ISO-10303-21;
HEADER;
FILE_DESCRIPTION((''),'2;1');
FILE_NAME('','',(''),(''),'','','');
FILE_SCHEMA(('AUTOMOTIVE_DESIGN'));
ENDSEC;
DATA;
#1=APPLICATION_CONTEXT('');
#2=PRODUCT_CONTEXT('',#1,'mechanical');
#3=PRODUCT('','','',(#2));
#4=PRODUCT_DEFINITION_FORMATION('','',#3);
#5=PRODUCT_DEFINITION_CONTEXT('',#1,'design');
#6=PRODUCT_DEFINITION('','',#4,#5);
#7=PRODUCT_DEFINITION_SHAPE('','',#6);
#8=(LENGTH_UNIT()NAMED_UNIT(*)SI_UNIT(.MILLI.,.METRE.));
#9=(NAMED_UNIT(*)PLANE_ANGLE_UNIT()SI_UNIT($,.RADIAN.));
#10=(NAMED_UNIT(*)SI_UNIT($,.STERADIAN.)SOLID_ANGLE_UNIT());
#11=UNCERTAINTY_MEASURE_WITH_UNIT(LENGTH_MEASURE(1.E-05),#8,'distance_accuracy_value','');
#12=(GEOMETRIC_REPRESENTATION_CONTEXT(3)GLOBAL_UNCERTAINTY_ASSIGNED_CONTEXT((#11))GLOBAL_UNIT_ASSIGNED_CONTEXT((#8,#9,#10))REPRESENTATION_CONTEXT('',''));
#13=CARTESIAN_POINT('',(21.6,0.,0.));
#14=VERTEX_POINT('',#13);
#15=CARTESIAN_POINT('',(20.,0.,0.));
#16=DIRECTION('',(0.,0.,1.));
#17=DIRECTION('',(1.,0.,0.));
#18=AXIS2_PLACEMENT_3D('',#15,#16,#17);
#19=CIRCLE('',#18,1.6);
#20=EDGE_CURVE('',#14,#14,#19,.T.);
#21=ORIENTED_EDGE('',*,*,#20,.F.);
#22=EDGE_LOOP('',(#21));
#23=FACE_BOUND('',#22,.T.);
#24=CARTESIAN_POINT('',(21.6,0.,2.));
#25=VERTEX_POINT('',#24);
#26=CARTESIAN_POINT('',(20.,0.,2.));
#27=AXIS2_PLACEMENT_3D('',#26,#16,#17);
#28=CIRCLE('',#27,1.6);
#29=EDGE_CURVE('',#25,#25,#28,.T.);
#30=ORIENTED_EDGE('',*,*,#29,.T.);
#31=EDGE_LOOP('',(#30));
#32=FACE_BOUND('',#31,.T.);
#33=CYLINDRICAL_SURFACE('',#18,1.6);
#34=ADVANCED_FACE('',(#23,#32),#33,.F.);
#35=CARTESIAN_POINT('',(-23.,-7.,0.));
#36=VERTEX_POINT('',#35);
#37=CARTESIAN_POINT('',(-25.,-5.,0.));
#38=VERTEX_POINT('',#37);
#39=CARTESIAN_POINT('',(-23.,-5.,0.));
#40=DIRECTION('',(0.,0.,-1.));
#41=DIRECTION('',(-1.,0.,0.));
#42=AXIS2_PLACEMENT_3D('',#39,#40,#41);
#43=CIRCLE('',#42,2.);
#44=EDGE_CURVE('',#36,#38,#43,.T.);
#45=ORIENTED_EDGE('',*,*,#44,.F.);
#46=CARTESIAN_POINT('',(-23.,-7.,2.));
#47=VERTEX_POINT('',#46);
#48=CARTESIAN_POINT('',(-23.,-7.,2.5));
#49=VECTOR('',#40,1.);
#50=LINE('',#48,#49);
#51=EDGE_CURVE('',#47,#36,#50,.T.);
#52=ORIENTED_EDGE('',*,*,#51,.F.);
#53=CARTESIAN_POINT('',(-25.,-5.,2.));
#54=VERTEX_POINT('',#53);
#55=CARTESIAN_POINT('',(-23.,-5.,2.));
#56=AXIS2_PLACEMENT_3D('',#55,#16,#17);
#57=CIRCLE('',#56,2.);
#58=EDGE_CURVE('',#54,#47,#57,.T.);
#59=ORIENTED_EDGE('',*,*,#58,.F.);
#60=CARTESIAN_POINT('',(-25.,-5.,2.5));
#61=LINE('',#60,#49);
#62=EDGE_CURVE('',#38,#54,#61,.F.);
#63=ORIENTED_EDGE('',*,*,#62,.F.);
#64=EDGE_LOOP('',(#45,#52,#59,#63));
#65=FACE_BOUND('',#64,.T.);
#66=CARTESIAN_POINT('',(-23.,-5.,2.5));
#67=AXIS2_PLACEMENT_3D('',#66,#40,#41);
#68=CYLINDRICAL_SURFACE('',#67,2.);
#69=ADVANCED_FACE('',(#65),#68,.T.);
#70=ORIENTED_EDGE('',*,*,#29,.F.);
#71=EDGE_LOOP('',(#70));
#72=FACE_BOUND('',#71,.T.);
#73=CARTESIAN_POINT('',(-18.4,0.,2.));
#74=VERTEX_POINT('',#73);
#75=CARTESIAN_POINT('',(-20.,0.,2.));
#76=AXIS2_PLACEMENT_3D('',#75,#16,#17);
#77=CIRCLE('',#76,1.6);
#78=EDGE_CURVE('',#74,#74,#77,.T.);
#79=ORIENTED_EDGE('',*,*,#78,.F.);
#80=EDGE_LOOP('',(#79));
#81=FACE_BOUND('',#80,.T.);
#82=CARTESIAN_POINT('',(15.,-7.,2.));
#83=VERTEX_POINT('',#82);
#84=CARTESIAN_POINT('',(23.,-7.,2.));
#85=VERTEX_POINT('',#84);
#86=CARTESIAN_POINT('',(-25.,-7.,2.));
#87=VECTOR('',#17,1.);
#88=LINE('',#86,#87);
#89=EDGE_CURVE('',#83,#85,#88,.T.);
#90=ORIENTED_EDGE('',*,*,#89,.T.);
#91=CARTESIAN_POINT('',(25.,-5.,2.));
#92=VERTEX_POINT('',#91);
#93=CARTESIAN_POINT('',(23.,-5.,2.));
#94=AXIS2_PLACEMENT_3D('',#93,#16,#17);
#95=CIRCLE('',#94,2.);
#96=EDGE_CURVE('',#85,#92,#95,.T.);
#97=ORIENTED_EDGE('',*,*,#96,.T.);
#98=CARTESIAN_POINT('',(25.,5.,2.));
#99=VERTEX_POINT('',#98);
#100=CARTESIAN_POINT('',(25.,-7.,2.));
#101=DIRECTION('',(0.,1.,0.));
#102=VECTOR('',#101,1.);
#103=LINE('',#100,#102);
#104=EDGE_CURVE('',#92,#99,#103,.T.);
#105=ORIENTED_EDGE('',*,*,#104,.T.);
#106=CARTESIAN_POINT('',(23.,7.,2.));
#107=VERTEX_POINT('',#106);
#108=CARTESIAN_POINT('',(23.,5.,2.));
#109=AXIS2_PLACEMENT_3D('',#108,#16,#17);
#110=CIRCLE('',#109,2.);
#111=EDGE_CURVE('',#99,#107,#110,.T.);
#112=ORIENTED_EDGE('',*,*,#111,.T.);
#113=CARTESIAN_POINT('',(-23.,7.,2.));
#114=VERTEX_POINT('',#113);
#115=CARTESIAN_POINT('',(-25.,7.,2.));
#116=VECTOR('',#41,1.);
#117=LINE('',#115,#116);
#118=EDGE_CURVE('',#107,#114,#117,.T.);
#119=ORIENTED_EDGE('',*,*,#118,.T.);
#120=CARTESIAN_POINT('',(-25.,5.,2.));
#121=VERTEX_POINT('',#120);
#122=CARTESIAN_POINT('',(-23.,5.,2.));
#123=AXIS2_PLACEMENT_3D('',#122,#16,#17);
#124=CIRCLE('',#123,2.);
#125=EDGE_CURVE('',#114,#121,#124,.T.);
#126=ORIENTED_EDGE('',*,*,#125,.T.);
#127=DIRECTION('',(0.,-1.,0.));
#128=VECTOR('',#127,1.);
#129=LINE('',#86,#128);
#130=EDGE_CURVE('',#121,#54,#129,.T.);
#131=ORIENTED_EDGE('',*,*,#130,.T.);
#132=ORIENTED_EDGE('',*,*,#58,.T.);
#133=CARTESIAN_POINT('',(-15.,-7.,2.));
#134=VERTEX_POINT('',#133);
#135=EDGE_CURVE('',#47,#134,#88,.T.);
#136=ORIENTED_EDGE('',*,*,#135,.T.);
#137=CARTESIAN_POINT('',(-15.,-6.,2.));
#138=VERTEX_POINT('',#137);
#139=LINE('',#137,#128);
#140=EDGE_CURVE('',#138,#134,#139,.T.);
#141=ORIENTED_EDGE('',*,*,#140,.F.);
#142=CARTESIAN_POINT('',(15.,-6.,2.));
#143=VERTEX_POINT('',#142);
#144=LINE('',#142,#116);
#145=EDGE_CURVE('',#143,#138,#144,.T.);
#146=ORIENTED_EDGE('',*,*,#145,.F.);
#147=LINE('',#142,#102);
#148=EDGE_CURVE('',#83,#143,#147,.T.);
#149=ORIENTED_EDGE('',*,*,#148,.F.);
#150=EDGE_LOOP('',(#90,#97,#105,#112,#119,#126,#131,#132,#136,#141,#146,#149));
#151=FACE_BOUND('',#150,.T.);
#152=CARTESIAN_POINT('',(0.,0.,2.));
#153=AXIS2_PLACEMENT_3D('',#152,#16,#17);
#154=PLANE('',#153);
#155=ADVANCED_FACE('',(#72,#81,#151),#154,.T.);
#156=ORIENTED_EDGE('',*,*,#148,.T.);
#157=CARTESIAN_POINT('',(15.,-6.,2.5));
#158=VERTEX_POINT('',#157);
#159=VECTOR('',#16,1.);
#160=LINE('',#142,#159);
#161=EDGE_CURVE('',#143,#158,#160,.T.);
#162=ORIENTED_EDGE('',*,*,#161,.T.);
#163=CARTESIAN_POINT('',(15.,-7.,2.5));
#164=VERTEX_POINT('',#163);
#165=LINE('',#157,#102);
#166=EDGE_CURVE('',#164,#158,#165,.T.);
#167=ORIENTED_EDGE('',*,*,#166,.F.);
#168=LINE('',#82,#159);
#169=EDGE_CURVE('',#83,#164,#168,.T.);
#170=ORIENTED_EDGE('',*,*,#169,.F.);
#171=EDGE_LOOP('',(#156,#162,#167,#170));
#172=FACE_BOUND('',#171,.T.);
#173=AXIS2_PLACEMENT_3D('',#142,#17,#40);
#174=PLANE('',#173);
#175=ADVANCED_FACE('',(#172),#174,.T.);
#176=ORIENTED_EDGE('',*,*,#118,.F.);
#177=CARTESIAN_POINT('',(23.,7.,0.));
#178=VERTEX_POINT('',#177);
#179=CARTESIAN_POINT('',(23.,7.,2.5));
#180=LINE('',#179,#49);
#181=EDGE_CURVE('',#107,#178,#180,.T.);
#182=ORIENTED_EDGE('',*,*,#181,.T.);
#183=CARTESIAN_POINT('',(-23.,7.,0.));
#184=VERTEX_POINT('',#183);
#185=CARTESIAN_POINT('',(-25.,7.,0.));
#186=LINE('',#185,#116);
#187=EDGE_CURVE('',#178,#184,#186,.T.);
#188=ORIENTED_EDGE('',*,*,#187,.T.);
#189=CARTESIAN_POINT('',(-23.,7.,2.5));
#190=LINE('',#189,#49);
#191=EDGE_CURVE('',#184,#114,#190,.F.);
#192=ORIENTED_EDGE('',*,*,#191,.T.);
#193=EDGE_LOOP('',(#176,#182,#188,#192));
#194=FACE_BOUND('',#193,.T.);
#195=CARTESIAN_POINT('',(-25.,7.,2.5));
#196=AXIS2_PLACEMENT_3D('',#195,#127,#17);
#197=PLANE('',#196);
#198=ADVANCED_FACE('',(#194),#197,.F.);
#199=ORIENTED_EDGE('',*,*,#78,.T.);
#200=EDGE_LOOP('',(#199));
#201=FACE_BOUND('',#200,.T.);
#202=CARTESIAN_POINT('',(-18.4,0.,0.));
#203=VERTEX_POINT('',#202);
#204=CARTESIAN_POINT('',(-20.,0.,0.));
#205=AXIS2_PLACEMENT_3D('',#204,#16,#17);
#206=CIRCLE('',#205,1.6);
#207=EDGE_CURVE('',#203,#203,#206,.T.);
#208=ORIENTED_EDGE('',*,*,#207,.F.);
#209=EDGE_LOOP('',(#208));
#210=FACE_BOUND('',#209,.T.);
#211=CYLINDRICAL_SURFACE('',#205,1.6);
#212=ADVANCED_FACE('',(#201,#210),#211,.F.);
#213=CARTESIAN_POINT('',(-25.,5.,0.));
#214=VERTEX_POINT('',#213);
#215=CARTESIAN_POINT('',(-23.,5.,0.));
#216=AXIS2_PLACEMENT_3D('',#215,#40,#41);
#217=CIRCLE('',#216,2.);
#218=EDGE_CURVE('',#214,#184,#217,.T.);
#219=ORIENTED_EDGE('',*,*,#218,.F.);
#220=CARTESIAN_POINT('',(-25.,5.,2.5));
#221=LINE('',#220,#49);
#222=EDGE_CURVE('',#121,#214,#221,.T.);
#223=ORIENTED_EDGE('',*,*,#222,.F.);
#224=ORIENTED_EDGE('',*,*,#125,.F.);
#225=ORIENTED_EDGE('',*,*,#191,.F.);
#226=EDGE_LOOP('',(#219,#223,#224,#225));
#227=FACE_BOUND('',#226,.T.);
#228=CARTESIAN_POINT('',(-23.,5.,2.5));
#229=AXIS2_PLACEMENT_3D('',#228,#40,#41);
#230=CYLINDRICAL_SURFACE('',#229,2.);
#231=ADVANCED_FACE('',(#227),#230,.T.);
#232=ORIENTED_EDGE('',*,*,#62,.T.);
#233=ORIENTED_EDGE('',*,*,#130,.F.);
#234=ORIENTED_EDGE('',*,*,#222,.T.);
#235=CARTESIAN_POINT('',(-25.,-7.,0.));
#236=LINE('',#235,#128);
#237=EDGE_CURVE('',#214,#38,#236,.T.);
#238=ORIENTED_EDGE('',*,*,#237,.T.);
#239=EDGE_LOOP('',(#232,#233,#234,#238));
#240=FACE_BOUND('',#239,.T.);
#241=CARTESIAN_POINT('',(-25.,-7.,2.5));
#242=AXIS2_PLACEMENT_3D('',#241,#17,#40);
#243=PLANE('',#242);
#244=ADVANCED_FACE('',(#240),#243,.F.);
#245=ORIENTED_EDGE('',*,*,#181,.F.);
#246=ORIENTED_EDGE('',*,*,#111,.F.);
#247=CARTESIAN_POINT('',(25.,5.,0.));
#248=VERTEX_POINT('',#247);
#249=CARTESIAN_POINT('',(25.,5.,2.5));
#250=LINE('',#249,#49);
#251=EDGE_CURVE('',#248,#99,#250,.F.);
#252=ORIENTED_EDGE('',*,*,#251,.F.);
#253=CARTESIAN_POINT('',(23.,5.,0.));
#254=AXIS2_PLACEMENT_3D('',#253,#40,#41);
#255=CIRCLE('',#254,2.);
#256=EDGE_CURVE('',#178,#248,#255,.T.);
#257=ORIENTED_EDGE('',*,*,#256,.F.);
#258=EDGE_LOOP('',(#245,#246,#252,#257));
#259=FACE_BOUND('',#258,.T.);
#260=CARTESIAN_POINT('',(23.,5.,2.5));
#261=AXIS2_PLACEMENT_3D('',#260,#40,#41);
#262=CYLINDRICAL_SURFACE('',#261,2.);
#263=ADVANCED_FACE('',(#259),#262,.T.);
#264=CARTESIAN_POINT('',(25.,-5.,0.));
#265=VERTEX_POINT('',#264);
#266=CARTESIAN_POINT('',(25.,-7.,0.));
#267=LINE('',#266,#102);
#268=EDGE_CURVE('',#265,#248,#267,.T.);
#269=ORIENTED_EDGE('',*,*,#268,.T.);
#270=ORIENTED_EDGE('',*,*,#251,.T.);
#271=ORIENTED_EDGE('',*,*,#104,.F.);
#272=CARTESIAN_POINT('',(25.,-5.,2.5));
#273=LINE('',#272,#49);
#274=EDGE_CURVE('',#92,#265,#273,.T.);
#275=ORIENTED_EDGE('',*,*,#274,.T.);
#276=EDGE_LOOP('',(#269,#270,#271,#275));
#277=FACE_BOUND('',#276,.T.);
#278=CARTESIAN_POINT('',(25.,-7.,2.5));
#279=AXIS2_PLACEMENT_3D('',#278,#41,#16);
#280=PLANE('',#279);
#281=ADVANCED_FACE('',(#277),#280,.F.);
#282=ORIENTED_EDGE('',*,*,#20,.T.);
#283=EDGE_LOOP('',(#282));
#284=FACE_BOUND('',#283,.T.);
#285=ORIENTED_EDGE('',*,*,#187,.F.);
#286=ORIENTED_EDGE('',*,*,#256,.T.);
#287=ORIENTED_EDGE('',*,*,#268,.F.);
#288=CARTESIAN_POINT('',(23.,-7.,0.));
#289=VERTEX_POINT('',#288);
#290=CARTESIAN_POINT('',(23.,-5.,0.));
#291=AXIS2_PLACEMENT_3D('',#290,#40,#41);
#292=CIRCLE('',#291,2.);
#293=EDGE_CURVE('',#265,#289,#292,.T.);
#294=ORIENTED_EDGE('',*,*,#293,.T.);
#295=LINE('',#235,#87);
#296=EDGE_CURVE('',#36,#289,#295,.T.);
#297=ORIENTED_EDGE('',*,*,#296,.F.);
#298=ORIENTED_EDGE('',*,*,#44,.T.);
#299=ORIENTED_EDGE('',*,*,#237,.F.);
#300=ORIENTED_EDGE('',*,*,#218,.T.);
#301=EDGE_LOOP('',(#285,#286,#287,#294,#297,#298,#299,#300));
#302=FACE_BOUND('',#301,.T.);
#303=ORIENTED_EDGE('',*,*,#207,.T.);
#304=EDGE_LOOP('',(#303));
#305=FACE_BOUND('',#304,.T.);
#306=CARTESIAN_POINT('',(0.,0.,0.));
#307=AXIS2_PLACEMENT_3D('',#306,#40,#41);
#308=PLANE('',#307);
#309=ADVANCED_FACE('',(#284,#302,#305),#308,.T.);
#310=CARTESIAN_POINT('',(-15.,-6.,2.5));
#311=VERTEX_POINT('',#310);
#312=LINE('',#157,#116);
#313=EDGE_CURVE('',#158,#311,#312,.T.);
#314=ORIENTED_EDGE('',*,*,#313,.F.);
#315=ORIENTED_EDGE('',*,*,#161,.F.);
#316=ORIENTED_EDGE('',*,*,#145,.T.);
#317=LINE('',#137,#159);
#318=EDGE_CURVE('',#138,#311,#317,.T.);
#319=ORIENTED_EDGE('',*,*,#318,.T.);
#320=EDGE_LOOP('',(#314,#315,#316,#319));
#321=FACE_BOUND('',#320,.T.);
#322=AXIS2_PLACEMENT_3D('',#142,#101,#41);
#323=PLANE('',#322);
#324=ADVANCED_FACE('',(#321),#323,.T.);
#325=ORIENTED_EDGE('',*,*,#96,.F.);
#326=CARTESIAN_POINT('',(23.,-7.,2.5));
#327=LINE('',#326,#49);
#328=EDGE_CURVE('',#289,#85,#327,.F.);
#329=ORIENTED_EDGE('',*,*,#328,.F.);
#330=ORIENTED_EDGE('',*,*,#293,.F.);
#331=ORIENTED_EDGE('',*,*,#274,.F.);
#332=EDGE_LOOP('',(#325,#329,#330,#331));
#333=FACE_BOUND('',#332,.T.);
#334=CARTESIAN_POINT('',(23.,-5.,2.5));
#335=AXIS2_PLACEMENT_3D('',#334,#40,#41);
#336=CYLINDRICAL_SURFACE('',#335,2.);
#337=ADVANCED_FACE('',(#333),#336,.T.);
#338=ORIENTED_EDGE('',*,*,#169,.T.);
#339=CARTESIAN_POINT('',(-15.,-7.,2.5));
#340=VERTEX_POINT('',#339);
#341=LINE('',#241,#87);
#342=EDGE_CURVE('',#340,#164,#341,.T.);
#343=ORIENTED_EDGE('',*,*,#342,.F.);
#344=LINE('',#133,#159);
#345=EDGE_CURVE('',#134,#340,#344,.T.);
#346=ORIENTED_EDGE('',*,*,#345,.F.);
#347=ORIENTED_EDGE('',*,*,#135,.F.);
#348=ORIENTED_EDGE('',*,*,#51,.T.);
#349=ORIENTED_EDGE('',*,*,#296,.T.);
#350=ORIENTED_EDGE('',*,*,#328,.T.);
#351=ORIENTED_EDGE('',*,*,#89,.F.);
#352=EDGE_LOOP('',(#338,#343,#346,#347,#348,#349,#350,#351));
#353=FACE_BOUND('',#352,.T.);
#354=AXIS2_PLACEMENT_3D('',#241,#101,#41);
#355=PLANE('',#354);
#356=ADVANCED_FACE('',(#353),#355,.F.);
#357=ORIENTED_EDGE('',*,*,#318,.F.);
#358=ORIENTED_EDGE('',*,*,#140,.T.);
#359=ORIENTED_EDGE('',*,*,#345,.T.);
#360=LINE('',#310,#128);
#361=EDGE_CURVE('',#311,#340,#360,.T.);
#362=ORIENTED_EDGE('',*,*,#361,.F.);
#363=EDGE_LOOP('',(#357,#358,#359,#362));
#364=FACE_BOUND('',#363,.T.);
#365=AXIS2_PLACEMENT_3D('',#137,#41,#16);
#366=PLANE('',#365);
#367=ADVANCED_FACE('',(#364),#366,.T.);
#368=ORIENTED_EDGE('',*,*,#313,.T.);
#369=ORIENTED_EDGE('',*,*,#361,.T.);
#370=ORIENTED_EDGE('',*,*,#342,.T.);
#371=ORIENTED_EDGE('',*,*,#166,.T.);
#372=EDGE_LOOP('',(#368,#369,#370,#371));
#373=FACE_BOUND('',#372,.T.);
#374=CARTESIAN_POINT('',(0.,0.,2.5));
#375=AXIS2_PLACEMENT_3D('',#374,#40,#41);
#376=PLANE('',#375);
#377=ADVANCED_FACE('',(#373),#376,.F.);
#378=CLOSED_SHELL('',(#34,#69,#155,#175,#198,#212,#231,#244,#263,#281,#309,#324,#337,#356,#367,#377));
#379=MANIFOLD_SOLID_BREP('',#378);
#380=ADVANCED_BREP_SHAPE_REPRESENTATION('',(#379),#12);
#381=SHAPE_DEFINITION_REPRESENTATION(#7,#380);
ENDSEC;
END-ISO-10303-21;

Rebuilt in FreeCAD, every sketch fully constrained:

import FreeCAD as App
import Part
import Sketcher

V = App.Vector
Q = App.Units.Quantity


def edges_at(feature, points):
    """Names of the edges that pass closest to the given points."""
    edges = feature.Shape.Edges
    near = lambda p: min(range(len(edges)), key=lambda i: edges[i].distToShape(Part.Vertex(*p))[0])
    return sorted({f"Edge{near(p) + 1}" for p in points})


def add_polygon(sketch, points):
    """Adds a closed chain of lines whose ends are joined by coincident constraints."""
    first, n = sketch.GeometryCount, len(points)
    for a, b in zip(points, points[1:] + points[:1]):
        sketch.addGeometry(Part.LineSegment(App.Vector(*a, 0), App.Vector(*b, 0)), False)
    for i in range(n):
        sketch.addConstraint(Sketcher.Constraint("Coincident", first + i, 2, first + (i + 1) % n, 1))

doc = App.newDocument("Part")
body = doc.addObject("PartDesign::Body", "Body")

sketch1 = body.newObject("Sketcher::SketchObject", "Sketch")
sketch1.AttachmentSupport = (doc.getObject("XY_Plane"), [""])
sketch1.MapMode = "FlatFace"
add_polygon(sketch1, [(-25, 7), (-25, -7), (25, -7), (25, 7)])
sketch1.addConstraint(Sketcher.Constraint("Vertical", 0))
sketch1.addConstraint(Sketcher.Constraint("Horizontal", 1))
sketch1.addConstraint(Sketcher.Constraint("Vertical", 2))
sketch1.addConstraint(Sketcher.Constraint("Horizontal", 3))
sketch1.addConstraint(Sketcher.Constraint("Symmetric", 0, 2, 2, 2, -1, 1))
sketch1.addConstraint(Sketcher.Constraint("DistanceX", 1, 1, 1, 2, Q("50 mm")))
sketch1.addConstraint(Sketcher.Constraint("DistanceY", 0, 2, 0, 1, Q("14 mm")))
pad1 = body.newObject("PartDesign::Pad", "Pad")
pad1.Profile = sketch1
pad1.Length = 2.5

sketch2 = body.newObject("Sketcher::SketchObject", "Sketch001")
sketch2.AttachmentSupport = (doc.getObject("XY_Plane"), [""])
sketch2.MapMode = "FlatFace"
sketch2.AttachmentOffset = App.Placement(V(0, 0, 2.5), App.Rotation())
add_polygon(sketch2, [(-31.2, 13.2), (-31.2, -13.2), (31.2, -13.2), (31.2, 13.2)])
add_polygon(sketch2, [(15, -7), (-15, -7), (-15, -6), (15, -6)])
sketch2.addConstraint(Sketcher.Constraint("Vertical", 0))
sketch2.addConstraint(Sketcher.Constraint("Horizontal", 1))
sketch2.addConstraint(Sketcher.Constraint("Vertical", 2))
sketch2.addConstraint(Sketcher.Constraint("Horizontal", 3))
sketch2.addConstraint(Sketcher.Constraint("Horizontal", 4))
sketch2.addConstraint(Sketcher.Constraint("Vertical", 5))
sketch2.addConstraint(Sketcher.Constraint("Horizontal", 6))
sketch2.addConstraint(Sketcher.Constraint("Vertical", 7))
sketch2.addConstraint(Sketcher.Constraint("Symmetric", 0, 2, 2, 2, -1, 1))
sketch2.addConstraint(Sketcher.Constraint("DistanceX", 4, 2, 4, 1, Q("30 mm")))
sketch2.addConstraint(Sketcher.Constraint("DistanceY", 5, 1, 5, 2, Q("1 mm")))
sketch2.addConstraint(Sketcher.Constraint("DistanceX", 4, 2, -1, 1, Q("15 mm")))
sketch2.addConstraint(Sketcher.Constraint("DistanceY", 4, 2, -1, 1, Q("7 mm")))
sketch2.addConstraint(Sketcher.Constraint("DistanceX", 1, 1, 1, 2, Q("62.396 mm")))
sketch2.addConstraint(Sketcher.Constraint("DistanceY", 0, 2, 0, 1, Q("26.396 mm")))
pocket1 = body.newObject("PartDesign::Pocket", "Pocket")
pocket1.Profile = sketch2
pocket1.Length = 0.5

sketch3 = body.newObject("Sketcher::SketchObject", "Sketch002")
sketch3.AttachmentSupport = (doc.getObject("XY_Plane"), [""])
sketch3.MapMode = "FlatFace"
sketch3.AttachmentOffset = App.Placement(V(0, 0, 2), App.Rotation())
sketch3.addGeometry(Part.Circle(V(-20, 0, 0), V(0, 0, 1), 1.6), False)
sketch3.addGeometry(Part.Circle(V(20, 0, 0), V(0, 0, 1), 1.6), False)
sketch3.addConstraint(Sketcher.Constraint("Equal", 0, 1))
sketch3.addConstraint(Sketcher.Constraint("Symmetric", 0, 3, 1, 3, -1, 1))
sketch3.addConstraint(Sketcher.Constraint("PointOnObject", 0, 3, -1))
sketch3.addConstraint(Sketcher.Constraint("Diameter", 0, Q("3.2 mm")))
sketch3.addConstraint(Sketcher.Constraint("DistanceX", 0, 3, -1, 1, Q("20 mm")))
pocket2 = body.newObject("PartDesign::Pocket", "Pocket001")
pocket2.Profile = sketch3
pocket2.Length = 2
doc.recompute()

fillet = body.newObject("PartDesign::Fillet", "Fillet")
fillet.Base = (pocket2, edges_at(pocket2, [
    (25, -7, 1),
    (-25, -7, 1),
    (-25, 7, 1),
    (25, 7, 1),
]))
fillet.Radius = 2

doc.recompute()
